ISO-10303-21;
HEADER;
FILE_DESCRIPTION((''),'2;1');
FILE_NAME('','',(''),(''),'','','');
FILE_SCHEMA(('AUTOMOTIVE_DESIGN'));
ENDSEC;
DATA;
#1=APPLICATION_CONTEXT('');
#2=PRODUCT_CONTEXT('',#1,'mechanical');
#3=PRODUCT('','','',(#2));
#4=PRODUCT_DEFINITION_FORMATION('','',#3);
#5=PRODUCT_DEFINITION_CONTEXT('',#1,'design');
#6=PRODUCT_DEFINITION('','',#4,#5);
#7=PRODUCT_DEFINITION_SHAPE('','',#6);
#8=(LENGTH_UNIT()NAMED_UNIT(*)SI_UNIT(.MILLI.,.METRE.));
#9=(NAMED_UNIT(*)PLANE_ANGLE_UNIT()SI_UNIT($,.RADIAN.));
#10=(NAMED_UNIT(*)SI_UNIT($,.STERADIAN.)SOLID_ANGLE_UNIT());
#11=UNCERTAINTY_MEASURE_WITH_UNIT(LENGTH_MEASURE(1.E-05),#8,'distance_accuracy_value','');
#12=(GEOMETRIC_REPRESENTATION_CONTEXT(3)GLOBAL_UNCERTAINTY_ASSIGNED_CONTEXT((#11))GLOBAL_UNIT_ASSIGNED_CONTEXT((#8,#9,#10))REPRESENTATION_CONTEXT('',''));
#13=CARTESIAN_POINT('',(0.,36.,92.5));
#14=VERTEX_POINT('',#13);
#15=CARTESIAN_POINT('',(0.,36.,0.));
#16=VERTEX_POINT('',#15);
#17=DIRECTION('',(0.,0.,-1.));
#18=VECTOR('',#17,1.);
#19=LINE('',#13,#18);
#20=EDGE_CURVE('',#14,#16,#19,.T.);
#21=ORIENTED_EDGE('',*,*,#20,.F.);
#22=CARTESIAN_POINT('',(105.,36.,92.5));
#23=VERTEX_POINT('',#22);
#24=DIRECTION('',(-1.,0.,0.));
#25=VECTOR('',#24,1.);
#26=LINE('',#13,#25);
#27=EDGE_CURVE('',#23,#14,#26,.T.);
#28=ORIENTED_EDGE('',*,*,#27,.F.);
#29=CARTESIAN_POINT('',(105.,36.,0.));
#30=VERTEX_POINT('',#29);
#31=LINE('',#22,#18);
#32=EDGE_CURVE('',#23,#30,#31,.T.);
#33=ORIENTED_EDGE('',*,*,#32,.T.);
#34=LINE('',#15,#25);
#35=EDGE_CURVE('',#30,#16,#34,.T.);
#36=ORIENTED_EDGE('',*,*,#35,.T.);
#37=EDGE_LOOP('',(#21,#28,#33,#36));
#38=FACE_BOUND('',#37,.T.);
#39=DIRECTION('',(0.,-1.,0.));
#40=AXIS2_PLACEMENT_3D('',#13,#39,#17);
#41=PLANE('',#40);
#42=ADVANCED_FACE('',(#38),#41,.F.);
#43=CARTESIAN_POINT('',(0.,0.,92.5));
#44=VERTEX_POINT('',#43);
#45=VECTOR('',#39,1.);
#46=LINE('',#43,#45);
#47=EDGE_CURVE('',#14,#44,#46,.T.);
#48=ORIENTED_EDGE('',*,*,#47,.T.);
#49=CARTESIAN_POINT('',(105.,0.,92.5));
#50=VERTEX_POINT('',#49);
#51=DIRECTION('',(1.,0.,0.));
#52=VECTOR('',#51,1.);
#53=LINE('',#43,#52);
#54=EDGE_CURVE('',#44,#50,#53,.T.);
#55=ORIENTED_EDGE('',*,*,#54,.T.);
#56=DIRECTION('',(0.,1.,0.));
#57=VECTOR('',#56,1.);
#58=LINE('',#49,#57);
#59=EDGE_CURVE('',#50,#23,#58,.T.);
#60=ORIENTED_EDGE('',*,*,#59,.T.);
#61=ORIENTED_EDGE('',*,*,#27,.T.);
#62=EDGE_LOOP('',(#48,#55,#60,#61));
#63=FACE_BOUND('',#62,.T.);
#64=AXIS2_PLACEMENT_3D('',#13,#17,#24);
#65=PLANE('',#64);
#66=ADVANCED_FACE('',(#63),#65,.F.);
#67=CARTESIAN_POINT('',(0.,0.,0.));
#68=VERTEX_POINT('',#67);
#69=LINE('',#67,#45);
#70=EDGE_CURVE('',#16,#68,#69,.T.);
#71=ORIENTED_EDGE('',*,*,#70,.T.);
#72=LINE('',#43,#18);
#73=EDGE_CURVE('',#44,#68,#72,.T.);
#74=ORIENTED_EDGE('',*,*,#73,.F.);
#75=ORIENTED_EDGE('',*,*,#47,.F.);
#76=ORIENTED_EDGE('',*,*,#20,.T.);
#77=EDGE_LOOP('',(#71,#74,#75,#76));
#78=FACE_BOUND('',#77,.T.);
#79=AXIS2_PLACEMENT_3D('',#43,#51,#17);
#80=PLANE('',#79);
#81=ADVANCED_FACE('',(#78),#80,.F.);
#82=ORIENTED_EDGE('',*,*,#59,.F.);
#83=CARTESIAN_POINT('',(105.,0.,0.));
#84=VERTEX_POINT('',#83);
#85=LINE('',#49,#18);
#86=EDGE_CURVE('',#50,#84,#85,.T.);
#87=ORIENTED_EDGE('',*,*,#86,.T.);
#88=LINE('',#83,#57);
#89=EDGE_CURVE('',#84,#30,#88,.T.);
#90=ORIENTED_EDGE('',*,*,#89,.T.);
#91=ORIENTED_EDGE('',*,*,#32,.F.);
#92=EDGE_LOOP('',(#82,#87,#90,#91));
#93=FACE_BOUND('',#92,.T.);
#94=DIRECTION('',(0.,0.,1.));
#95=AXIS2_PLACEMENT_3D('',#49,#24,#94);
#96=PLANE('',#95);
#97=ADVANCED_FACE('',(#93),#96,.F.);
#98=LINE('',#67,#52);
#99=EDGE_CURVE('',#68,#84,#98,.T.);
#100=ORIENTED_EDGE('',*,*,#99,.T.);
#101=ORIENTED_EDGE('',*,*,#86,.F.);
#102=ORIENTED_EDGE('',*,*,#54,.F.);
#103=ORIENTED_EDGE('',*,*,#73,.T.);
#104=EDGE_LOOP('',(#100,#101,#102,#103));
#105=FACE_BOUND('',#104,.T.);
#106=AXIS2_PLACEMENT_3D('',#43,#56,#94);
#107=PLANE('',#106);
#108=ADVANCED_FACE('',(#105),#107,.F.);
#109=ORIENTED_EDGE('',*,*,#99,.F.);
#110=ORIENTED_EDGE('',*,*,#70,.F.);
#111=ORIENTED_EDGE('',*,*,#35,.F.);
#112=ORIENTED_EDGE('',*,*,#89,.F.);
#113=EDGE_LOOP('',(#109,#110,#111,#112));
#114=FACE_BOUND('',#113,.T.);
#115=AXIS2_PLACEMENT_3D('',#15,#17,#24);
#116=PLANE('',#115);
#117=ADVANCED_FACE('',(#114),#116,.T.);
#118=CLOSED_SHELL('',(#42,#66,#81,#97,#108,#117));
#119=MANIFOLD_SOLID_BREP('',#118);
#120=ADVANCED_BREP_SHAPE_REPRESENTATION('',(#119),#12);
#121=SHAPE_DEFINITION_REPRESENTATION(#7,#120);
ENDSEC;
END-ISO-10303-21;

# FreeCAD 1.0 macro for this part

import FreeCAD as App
import Part
import Sketcher

doc = App.newDocument("Part")
body = doc.addObject("PartDesign::Body", "Body")

sketch1 = body.newObject("Sketcher::SketchObject", "Sketch")
sketch1.AttachmentSupport = (doc.getObject("XY_Plane"), [""])
sketch1.MapMode = "FlatFace"
sketch1.addGeometry([
    Part.LineSegment(App.Vector(0, 36, 0), App.Vector(0, 0, 0)),
    Part.LineSegment(App.Vector(0, 0, 0), App.Vector(105, 0, 0)),
    Part.LineSegment(App.Vector(105, 0, 0), App.Vector(105, 36, 0)),
    Part.LineSegment(App.Vector(105, 36, 0), App.Vector(0, 36, 0)),
], False)
sketch1.addConstraint([
    Sketcher.Constraint("Coincident", 0, 2, 1, 1),
    Sketcher.Constraint("Coincident", 1, 2, 2, 1),
    Sketcher.Constraint("Coincident", 2, 2, 3, 1),
    Sketcher.Constraint("Coincident", 3, 2, 0, 1),
    Sketcher.Constraint("Vertical", 0),
    Sketcher.Constraint("Horizontal", 1),
    Sketcher.Constraint("Vertical", 2),
    Sketcher.Constraint("Horizontal", 3),
    Sketcher.Constraint("Coincident", 0, 2, -1, 1),
    Sketcher.Constraint("DistanceX", 1, 1, 1, 2, 105.0),
    Sketcher.Constraint("DistanceY", 0, 2, 0, 1, 36.0),
])
pad1 = body.newObject("PartDesign::Pad", "Pad")
pad1.Profile = sketch1
pad1.Length = 92.5

doc.recompute()
